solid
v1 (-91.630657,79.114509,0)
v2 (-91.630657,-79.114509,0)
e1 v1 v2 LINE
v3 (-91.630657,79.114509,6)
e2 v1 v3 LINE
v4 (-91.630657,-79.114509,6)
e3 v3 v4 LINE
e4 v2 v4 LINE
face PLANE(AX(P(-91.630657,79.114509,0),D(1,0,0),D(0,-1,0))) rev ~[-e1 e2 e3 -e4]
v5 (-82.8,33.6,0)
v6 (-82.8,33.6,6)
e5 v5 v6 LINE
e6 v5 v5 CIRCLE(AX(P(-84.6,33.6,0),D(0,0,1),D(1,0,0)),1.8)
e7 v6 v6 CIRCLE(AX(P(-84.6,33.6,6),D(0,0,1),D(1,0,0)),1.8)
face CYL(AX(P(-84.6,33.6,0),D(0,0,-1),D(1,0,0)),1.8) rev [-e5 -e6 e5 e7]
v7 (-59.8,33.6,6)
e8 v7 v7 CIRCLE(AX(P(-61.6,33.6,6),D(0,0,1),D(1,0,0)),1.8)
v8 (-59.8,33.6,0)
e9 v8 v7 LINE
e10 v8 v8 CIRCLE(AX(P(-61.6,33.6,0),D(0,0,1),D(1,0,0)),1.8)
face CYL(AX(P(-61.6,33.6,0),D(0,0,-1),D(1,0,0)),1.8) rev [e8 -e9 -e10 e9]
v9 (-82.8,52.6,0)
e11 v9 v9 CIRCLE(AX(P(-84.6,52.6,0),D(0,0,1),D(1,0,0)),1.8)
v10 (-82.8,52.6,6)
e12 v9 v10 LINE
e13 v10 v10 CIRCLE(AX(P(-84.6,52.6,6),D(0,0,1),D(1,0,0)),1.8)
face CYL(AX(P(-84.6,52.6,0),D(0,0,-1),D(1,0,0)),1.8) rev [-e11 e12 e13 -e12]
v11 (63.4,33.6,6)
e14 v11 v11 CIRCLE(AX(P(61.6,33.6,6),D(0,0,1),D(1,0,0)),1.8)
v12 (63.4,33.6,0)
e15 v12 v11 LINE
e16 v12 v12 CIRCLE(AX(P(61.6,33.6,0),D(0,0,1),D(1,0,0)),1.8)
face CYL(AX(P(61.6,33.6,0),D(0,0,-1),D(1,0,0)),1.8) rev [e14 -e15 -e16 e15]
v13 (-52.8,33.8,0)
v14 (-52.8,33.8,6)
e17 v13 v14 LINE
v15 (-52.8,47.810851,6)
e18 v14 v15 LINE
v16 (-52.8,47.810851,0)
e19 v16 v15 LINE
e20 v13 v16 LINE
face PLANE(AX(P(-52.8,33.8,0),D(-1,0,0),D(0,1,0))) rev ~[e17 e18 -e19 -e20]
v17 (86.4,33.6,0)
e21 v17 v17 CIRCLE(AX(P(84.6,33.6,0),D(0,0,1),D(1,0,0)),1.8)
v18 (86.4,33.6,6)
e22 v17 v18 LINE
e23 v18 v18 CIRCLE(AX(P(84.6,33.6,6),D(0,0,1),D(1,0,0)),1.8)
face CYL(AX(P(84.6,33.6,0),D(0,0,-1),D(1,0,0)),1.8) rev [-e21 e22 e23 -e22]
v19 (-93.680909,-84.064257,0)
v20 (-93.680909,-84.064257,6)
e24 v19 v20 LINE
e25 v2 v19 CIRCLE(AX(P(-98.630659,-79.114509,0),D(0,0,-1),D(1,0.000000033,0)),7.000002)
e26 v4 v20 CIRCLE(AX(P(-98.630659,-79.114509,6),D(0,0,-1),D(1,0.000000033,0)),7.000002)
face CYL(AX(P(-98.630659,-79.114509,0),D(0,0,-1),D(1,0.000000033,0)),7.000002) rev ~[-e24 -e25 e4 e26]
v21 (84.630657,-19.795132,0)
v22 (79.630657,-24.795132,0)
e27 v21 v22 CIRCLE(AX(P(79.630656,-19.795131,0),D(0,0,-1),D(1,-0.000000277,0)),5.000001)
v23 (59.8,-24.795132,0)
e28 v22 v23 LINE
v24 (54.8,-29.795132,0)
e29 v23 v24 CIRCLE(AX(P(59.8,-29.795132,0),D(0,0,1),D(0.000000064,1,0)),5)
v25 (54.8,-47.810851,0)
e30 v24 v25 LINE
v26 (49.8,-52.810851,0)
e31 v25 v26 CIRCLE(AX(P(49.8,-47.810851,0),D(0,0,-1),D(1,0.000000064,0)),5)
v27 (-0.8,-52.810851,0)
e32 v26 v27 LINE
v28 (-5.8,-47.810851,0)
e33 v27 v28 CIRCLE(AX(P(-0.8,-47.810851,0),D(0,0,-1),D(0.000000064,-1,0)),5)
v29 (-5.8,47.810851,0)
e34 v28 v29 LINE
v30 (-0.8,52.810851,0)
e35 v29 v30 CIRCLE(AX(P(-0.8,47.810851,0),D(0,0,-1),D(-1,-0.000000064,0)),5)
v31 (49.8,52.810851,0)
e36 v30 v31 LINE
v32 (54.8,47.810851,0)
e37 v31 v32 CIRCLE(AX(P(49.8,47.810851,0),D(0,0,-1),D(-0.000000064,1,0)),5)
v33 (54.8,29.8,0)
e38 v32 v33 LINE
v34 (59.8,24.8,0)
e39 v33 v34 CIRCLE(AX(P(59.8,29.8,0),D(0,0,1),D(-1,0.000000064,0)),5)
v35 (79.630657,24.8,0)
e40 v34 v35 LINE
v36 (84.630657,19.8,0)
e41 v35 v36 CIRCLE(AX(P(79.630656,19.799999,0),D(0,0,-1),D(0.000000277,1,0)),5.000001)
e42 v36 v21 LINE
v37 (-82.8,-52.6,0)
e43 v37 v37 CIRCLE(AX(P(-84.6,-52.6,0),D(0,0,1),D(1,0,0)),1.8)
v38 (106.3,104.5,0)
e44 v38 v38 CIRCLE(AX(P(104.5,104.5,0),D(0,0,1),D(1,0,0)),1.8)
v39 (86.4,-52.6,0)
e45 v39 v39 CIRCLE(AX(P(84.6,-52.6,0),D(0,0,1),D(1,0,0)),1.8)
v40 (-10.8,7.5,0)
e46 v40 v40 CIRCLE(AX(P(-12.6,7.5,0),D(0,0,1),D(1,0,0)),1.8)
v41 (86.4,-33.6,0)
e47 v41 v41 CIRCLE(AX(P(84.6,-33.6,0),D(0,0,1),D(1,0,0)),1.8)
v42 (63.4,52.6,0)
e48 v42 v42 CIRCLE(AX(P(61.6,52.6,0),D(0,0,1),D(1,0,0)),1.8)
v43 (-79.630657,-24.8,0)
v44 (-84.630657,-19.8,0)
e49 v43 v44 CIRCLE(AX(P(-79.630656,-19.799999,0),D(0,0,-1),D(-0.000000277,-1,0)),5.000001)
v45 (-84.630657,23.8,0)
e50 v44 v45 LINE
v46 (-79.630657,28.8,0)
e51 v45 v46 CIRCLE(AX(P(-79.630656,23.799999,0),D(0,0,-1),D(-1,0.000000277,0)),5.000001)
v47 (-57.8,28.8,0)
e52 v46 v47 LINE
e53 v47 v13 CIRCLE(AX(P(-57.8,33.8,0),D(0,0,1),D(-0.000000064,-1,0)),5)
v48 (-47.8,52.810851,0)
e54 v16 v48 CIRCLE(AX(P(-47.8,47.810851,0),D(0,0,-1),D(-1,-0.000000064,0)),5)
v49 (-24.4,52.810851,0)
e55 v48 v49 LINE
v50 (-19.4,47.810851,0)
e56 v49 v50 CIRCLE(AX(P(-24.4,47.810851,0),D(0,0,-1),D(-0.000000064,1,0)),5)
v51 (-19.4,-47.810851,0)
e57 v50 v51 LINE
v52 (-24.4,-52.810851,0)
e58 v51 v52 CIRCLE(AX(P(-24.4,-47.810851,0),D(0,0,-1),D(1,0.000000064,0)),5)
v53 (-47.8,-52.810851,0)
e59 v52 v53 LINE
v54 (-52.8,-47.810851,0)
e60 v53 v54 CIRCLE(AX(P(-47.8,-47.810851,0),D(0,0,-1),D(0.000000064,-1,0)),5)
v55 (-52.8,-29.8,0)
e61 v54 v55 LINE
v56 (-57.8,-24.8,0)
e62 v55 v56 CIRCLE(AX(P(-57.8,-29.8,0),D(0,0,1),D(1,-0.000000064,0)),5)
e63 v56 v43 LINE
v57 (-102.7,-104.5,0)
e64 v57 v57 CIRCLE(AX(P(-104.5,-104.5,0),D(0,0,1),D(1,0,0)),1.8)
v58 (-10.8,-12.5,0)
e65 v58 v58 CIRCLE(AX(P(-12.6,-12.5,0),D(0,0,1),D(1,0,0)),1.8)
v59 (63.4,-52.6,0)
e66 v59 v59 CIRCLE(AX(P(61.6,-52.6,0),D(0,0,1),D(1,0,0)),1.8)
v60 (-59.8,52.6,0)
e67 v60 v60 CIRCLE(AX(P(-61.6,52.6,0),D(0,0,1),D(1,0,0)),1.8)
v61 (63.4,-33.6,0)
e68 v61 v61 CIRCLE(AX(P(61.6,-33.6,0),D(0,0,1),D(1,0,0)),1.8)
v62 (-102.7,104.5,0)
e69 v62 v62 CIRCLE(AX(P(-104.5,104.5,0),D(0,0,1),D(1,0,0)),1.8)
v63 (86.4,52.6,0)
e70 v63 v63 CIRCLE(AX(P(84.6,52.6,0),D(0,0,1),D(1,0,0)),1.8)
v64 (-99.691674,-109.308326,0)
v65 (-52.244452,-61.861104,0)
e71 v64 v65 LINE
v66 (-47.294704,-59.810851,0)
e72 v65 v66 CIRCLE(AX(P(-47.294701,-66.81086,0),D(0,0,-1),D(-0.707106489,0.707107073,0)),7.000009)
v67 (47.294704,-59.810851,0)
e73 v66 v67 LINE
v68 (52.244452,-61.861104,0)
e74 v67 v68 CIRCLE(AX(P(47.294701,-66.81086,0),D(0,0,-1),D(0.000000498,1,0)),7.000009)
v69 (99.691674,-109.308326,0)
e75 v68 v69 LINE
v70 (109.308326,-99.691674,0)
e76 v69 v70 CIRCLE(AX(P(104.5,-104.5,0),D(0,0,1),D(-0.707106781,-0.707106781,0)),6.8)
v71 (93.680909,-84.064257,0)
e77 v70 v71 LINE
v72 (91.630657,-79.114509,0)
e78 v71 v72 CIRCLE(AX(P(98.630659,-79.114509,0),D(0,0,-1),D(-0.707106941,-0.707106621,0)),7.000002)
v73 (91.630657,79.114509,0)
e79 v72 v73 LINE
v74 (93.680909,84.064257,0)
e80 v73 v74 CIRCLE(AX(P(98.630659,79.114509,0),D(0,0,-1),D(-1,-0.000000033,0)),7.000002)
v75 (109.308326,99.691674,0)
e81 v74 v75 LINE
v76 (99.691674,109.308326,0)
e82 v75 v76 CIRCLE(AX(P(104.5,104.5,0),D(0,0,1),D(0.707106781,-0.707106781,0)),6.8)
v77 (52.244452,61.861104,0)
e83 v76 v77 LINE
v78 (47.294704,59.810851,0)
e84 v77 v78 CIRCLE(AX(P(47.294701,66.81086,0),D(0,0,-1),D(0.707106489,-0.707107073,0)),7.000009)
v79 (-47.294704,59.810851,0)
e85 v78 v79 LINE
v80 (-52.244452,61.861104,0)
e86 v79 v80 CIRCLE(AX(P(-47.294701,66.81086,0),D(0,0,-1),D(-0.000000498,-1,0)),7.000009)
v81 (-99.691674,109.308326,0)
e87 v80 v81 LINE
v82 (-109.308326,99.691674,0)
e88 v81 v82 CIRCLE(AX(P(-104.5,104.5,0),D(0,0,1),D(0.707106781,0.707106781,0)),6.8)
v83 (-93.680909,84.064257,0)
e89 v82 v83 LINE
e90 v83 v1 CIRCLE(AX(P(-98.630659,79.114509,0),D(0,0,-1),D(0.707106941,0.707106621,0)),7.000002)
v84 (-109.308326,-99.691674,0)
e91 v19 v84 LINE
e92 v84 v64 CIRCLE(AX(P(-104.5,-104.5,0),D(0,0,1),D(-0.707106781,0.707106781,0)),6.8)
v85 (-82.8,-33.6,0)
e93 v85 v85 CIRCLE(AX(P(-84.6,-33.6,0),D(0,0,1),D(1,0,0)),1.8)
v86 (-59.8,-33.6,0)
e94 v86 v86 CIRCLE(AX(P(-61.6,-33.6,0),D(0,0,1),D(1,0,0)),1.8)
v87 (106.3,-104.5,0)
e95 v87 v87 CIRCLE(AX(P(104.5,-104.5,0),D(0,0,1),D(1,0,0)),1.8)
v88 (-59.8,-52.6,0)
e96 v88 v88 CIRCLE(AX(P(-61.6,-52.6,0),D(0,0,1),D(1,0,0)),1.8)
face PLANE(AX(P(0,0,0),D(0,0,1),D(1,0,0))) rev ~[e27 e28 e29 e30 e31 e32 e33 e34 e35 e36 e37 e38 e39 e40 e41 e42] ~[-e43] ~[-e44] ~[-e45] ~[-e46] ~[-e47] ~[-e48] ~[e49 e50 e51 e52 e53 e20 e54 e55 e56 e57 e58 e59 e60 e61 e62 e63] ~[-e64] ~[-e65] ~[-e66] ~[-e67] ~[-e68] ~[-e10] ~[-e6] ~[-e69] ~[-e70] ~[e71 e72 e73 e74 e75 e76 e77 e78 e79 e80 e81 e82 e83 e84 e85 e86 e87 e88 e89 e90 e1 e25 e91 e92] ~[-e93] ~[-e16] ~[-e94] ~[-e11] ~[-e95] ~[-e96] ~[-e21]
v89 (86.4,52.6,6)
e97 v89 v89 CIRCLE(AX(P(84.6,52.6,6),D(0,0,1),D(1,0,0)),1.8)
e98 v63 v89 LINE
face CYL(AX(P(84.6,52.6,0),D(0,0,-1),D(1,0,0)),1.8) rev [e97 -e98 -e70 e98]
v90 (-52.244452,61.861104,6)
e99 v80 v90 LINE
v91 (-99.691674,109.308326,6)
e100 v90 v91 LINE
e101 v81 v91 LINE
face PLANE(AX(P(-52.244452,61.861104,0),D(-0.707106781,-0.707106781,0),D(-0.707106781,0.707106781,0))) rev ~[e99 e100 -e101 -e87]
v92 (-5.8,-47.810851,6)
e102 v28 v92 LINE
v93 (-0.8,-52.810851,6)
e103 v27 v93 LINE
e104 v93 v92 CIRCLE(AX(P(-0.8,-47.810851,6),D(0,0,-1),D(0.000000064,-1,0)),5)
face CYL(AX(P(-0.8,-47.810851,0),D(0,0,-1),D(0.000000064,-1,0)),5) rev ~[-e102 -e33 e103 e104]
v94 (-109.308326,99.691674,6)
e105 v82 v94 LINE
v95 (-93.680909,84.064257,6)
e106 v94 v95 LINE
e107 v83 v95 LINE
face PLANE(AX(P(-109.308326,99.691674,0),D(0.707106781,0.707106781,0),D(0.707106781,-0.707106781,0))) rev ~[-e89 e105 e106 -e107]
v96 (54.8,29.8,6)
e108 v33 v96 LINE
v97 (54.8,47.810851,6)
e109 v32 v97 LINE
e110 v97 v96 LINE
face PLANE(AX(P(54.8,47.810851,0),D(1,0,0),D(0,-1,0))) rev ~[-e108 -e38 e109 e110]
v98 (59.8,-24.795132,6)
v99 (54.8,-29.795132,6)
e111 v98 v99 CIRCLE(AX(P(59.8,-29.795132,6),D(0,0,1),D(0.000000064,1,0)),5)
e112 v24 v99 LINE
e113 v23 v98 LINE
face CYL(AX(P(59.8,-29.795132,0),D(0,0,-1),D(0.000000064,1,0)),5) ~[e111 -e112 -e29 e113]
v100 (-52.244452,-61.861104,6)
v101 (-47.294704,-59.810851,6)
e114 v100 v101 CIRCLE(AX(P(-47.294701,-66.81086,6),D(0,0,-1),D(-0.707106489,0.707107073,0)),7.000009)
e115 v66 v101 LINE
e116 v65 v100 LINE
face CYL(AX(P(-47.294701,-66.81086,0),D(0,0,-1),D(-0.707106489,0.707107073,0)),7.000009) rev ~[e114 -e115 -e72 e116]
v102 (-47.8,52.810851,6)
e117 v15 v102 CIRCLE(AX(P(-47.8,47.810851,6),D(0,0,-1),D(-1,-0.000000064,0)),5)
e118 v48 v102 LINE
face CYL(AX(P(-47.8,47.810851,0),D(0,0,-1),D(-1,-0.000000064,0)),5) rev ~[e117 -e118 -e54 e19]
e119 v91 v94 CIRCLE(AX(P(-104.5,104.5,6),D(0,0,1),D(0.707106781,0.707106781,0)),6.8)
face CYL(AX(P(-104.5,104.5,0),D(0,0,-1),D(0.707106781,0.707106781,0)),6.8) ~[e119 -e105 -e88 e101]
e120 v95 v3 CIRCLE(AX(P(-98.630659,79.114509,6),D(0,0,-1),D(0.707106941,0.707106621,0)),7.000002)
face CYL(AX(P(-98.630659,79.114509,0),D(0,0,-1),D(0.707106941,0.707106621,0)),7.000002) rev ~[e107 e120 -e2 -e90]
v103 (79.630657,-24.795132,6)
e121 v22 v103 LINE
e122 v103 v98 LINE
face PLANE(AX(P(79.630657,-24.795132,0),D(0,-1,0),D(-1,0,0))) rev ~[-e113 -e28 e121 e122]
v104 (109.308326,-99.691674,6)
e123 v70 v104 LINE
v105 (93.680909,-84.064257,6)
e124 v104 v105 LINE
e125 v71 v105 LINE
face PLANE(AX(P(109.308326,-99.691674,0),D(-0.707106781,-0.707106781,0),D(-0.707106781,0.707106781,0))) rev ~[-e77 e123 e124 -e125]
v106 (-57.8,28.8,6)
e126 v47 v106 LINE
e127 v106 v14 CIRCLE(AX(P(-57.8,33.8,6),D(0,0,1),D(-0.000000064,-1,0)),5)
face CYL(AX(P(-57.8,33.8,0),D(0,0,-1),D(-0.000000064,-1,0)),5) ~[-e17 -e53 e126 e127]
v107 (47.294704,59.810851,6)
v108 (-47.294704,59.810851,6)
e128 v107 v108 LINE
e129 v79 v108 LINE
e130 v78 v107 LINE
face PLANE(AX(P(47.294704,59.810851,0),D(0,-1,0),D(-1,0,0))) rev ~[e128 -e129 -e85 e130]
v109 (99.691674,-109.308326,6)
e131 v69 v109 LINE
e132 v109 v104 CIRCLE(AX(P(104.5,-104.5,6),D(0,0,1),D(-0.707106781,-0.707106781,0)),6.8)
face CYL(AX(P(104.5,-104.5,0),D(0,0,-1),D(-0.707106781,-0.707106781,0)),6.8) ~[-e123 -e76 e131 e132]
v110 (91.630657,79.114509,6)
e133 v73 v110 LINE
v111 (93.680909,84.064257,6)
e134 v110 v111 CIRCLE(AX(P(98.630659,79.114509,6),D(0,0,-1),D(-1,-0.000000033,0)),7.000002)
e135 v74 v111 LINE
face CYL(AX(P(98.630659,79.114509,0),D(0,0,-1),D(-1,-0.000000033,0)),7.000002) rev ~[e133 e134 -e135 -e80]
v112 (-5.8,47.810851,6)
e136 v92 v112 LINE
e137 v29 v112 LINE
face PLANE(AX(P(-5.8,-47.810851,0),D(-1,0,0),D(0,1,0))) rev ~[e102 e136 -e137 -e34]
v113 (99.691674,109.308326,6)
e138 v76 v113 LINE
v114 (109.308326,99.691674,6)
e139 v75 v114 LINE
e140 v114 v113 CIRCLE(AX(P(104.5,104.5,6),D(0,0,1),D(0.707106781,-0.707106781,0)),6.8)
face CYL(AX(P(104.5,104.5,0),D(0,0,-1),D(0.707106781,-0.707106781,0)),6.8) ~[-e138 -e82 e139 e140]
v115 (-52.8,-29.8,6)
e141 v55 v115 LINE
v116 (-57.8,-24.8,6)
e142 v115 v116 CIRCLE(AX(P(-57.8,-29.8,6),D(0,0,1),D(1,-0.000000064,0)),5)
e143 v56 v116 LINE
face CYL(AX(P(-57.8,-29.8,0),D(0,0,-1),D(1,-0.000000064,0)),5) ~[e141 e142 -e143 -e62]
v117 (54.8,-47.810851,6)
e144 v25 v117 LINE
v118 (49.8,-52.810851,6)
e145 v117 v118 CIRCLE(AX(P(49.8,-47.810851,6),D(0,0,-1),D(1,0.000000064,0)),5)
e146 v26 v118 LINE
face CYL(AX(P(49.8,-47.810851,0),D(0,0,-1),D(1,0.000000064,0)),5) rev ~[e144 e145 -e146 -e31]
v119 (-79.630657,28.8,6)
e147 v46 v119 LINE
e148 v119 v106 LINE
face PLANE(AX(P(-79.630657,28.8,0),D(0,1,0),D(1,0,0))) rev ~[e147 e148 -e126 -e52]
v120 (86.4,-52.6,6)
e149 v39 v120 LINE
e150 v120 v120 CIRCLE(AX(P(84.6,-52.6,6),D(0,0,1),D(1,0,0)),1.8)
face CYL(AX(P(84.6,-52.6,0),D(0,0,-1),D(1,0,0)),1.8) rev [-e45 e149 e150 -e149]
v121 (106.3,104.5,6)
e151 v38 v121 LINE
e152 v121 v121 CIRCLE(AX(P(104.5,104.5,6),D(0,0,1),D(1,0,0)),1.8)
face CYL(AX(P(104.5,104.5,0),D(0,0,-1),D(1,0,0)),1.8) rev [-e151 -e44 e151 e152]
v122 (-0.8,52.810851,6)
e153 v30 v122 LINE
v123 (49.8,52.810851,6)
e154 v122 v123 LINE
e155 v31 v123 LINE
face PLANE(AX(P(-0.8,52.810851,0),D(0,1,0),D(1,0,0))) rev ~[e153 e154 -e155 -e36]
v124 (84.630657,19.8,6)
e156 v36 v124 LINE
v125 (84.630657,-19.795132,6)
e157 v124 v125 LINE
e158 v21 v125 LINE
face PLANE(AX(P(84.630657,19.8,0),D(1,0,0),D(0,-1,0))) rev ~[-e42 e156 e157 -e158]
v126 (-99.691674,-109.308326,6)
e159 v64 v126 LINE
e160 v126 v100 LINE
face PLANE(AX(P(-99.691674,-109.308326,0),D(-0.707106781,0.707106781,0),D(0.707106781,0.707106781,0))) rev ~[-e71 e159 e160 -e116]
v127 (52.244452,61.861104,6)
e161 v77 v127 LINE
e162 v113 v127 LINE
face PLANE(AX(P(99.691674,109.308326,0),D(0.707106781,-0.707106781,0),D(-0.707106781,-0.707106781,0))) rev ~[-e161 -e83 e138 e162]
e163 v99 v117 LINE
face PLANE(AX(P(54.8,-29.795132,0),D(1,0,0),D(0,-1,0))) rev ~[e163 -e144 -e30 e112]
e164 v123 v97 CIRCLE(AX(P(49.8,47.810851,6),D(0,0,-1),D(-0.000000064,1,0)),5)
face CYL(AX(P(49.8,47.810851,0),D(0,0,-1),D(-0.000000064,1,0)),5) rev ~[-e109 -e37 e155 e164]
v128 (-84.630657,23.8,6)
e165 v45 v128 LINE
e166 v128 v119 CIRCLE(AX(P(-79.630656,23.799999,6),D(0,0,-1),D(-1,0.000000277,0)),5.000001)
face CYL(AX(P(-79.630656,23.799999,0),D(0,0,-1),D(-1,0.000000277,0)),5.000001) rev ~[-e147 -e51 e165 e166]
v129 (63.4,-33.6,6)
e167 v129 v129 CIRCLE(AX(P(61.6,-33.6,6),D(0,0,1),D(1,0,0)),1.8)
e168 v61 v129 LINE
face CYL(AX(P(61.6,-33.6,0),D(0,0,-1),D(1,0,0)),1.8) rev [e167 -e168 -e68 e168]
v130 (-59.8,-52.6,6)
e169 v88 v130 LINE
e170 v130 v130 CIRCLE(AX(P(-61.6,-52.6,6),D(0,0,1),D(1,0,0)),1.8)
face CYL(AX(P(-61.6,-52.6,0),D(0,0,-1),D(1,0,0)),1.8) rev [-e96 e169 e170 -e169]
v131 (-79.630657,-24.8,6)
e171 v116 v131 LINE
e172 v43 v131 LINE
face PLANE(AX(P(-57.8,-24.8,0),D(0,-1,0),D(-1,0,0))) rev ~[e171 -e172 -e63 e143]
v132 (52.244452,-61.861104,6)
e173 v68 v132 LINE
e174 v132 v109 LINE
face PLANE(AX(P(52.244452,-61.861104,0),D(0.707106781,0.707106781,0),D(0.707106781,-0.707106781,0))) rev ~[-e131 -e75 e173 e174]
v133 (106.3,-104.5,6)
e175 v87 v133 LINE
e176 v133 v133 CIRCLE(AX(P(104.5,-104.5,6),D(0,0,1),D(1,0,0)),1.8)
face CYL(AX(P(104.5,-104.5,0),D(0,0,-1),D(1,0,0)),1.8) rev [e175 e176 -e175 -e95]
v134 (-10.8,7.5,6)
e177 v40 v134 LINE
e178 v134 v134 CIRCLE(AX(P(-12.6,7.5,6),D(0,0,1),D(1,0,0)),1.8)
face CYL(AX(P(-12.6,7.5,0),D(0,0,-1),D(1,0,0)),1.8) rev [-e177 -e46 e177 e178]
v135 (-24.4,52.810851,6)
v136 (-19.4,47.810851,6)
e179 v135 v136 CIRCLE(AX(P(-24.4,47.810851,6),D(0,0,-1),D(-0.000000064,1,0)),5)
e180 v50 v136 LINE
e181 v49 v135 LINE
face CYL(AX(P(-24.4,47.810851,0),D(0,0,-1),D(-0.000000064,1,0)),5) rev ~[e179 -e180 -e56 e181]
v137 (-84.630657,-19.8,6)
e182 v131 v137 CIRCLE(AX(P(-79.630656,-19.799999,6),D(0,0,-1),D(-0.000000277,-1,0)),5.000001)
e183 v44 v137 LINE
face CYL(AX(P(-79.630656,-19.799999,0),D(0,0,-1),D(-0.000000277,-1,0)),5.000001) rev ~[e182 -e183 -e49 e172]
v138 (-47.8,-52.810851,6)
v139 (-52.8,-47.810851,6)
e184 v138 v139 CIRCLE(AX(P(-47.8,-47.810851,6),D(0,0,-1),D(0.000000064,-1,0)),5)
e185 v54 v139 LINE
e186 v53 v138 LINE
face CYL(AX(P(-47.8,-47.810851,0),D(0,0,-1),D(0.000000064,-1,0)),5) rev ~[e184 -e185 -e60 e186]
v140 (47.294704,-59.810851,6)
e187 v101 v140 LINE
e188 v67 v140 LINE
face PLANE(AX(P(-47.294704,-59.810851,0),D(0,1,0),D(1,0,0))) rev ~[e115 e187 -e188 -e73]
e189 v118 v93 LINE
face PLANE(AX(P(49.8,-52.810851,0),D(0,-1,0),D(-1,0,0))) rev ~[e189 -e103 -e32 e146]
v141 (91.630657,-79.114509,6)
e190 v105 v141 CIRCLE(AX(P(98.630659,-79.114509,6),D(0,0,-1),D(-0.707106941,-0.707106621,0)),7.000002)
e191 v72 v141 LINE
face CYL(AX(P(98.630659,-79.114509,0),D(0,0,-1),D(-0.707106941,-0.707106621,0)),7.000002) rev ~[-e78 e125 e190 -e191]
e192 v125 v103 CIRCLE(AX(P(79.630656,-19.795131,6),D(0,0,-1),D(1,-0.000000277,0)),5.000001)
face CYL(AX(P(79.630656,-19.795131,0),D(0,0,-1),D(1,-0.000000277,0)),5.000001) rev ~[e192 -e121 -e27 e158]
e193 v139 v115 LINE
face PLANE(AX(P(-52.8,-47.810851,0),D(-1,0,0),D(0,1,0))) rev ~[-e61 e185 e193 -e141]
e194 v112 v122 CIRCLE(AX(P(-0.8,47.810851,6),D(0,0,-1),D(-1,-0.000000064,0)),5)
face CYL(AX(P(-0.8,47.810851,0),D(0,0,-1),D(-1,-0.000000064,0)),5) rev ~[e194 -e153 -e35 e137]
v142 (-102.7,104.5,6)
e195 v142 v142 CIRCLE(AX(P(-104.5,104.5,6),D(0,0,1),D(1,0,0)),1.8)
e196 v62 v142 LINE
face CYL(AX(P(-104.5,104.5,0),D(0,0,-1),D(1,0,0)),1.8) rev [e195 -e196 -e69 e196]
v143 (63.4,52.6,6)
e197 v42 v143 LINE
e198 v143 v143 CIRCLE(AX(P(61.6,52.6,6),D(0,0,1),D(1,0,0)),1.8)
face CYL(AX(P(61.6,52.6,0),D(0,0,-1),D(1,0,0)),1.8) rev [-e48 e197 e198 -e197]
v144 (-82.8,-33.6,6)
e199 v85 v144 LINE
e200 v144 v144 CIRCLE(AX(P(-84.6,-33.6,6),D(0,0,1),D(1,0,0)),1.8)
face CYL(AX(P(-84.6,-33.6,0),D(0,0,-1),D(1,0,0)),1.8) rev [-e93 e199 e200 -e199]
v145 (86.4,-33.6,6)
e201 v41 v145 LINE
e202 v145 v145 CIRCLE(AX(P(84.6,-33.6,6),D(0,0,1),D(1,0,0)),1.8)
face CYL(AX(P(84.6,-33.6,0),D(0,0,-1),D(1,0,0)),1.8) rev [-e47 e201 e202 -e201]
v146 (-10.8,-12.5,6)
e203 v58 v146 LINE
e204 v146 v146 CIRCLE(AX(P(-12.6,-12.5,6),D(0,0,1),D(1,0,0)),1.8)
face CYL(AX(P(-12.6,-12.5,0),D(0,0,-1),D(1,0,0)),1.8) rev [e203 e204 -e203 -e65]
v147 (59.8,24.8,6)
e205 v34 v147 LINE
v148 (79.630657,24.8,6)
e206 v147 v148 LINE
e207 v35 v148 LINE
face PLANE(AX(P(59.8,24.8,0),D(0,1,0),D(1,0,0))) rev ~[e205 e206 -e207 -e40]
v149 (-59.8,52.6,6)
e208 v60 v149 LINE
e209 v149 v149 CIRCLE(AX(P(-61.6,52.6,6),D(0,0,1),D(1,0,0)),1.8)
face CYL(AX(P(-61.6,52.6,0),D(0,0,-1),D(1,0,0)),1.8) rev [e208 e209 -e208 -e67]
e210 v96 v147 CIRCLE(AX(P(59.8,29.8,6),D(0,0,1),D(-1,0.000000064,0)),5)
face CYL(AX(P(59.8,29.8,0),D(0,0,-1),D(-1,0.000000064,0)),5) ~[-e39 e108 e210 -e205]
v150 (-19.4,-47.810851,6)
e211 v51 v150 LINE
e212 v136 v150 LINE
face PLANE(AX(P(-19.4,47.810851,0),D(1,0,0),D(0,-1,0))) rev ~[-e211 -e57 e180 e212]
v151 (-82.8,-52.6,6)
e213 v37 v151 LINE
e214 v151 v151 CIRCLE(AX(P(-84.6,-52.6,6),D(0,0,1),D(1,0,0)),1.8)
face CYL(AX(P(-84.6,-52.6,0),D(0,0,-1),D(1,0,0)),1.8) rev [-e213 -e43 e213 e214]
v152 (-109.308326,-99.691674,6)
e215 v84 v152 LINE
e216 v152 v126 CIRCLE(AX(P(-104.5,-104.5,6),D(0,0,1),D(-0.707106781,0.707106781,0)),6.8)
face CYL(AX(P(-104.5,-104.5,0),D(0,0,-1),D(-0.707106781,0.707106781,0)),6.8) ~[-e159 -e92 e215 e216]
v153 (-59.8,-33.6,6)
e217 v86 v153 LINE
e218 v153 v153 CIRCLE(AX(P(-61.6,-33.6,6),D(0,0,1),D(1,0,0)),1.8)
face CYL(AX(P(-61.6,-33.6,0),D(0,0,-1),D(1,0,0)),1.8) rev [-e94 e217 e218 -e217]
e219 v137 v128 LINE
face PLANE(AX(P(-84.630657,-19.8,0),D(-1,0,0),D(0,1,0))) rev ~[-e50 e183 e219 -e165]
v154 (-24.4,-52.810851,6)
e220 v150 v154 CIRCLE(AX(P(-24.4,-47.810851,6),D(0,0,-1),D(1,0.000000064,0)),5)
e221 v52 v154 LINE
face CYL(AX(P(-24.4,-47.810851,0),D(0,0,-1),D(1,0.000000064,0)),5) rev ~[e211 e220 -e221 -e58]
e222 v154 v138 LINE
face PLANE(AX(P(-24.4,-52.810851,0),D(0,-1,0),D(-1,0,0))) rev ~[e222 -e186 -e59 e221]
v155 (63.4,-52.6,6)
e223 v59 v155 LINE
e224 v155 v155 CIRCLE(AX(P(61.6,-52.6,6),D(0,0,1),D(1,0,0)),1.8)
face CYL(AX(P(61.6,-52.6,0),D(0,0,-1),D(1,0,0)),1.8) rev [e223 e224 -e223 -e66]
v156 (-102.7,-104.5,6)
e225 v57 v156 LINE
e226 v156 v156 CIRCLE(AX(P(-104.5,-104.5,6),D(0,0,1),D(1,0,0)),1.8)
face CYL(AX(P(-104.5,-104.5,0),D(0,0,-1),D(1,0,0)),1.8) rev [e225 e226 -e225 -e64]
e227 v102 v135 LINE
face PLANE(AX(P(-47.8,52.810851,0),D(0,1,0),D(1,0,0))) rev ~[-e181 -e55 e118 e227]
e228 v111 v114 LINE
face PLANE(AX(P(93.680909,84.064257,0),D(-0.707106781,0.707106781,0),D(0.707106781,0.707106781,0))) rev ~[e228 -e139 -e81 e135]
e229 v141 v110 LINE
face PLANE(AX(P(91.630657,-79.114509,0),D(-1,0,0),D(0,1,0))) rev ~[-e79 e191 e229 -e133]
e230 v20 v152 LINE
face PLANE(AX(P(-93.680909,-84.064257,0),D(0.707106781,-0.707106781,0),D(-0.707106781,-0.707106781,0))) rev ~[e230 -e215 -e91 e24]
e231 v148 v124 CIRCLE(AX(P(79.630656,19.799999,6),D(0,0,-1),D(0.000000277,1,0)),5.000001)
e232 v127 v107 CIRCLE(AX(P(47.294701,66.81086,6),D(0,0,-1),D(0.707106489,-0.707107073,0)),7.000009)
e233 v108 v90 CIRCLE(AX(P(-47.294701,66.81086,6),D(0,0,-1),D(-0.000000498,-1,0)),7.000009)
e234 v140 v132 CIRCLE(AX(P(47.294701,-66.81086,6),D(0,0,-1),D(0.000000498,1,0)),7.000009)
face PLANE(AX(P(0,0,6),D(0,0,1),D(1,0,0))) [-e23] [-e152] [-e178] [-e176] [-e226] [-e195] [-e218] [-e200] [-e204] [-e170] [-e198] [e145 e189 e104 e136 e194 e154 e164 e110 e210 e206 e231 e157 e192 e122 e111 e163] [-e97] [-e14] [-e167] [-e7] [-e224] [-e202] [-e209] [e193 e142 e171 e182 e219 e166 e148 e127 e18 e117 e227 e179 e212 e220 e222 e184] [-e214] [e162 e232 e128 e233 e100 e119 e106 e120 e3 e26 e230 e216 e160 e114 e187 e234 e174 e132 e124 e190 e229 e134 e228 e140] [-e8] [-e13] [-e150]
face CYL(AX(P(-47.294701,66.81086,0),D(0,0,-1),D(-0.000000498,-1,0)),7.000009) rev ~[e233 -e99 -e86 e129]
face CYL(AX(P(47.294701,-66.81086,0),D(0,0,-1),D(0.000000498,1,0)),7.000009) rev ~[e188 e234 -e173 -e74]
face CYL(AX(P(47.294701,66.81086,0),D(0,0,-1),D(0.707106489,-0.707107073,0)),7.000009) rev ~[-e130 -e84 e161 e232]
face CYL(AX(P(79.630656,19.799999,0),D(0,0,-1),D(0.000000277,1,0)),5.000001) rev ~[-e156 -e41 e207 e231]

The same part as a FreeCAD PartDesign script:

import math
import FreeCAD as App
import Part
import Sketcher

V = App.Vector

doc = App.newDocument("Part")
params = doc.addObject("Spreadsheet::Sheet", "Params")
for row, (alias, value) in enumerate([
    ("sketch1_radius", "5 mm"),
    ("sketch1_diameter", "3.6 mm"),
    ("sketch1_radius2", "6.8 mm"),
    ("sketch1_width", "23.4 mm"),
    ("sketch1_width2", "50.6 mm"),
    ("pad1_length", "6 mm"),
], start=1):
    params.set(f"A{row}", alias)
    params.set(f"B{row}", "=" + value)
    params.setAlias(f"B{row}", alias)

body = doc.addObject("PartDesign::Body", "Body")

# Sketch on XY plane
sketch1 = doc.addObject("Sketcher::SketchObject", "Sketch")
body.addObject(sketch1)
sketch1.AttachmentSupport = (doc.XY_Plane, [""])
sketch1.MapMode = "FlatFace"
sketch1.addGeometry([
    Part.ArcOfCircle(Part.Circle(V(47.294701, 66.81086, 0), V(0, 0, 1), 7.000009), math.radians(-89.999971), math.radians(-45.000024)),  # 0
    Part.LineSegment(V(47.294704, 59.810851, 0), V(-47.294704, 59.810851, 0)),  # 1
    Part.ArcOfCircle(Part.Circle(V(-47.294701, 66.81086, 0), V(0, 0, 1), 7.000009), math.radians(-134.999976), math.radians(-90.000029)),  # 2
    Part.LineSegment(V(-52.244452, 61.861104, 0), V(-99.691674, 109.308326, 0)),  # 3
    Part.ArcOfCircle(Part.Circle(V(-104.5, 104.5, 0), V(0, 0, 1), 6.8), math.radians(45), math.radians(225)),  # 4
    Part.LineSegment(V(-109.308326, 99.691674, 0), V(-93.680909, 84.064257, 0)),  # 5
    Part.ArcOfCircle(Part.Circle(V(-98.630659, 79.114509, 0), V(0, 0, 1), 7.000002), math.radians(-0.000002), math.radians(44.999987)),  # 6
    Part.LineSegment(V(-91.630657, 79.114509, 0), V(-91.630657, -79.114509, 0)),  # 7
    Part.ArcOfCircle(Part.Circle(V(-98.630659, -79.114509, 0), V(0, 0, 1), 7.000002), math.radians(-44.999987), math.radians(0.000002)),  # 8
    Part.LineSegment(V(-93.680909, -84.064257, 0), V(-109.308326, -99.691674, 0)),  # 9
    Part.ArcOfCircle(Part.Circle(V(-104.5, -104.5, 0), V(0, 0, 1), 6.8), math.radians(135), math.radians(315)),  # 10
    Part.LineSegment(V(-99.691674, -109.308326, 0), V(-52.244452, -61.861104, 0)),  # 11
    Part.ArcOfCircle(Part.Circle(V(-47.294701, -66.81086, 0), V(0, 0, 1), 7.000009), math.radians(90.000029), math.radians(134.999976)),  # 12
    Part.LineSegment(V(-47.294704, -59.810851, 0), V(47.294704, -59.810851, 0)),  # 13
    Part.ArcOfCircle(Part.Circle(V(47.294701, -66.81086, 0), V(0, 0, 1), 7.000009), math.radians(45.000024), math.radians(89.999971)),  # 14
    Part.LineSegment(V(52.244452, -61.861104, 0), V(99.691674, -109.308326, 0)),  # 15
    Part.ArcOfCircle(Part.Circle(V(104.5, -104.5, 0), V(0, 0, 1), 6.8), math.radians(-135), math.radians(45)),  # 16
    Part.LineSegment(V(109.308326, -99.691674, 0), V(93.680909, -84.064257, 0)),  # 17
    Part.ArcOfCircle(Part.Circle(V(98.630659, -79.114509, 0), V(0, 0, 1), 7.000002), math.radians(179.999998), math.radians(224.999987)),  # 18
    Part.LineSegment(V(91.630657, -79.114509, 0), V(91.630657, 79.114509, 0)),  # 19
    Part.ArcOfCircle(Part.Circle(V(98.630659, 79.114509, 0), V(0, 0, 1), 7.000002), math.radians(135.000013), math.radians(180.000002)),  # 20
    Part.LineSegment(V(93.680909, 84.064257, 0), V(109.308326, 99.691674, 0)),  # 21
    Part.ArcOfCircle(Part.Circle(V(104.5, 104.5, 0), V(0, 0, 1), 6.8), math.radians(-45), math.radians(135)),  # 22
    Part.LineSegment(V(99.691674, 109.308326, 0), V(52.244452, 61.861104, 0)),  # 23
    Part.Circle(V(-104.5, -104.5, 0), V(0, 0, 1), 1.8),  # 24
    Part.Circle(V(-84.6, -52.6, 0), V(0, 0, 1), 1.8),  # 25
    Part.Circle(V(-84.6, -33.6, 0), V(0, 0, 1), 1.8),  # 26
    Part.Circle(V(-61.6, -52.6, 0), V(0, 0, 1), 1.8),  # 27
    Part.Circle(V(-61.6, -33.6, 0), V(0, 0, 1), 1.8),  # 28
    Part.Circle(V(-12.6, -12.5, 0), V(0, 0, 1), 1.8),  # 29
    Part.Circle(V(104.5, -104.5, 0), V(0, 0, 1), 1.8),  # 30
    Part.Circle(V(61.6, -52.6, 0), V(0, 0, 1), 1.8),  # 31
    Part.Circle(V(61.6, -33.6, 0), V(0, 0, 1), 1.8),  # 32
    Part.Circle(V(84.6, -52.6, 0), V(0, 0, 1), 1.8),  # 33
    Part.Circle(V(84.6, -33.6, 0), V(0, 0, 1), 1.8),  # 34
    Part.Circle(V(-84.6, 33.6, 0), V(0, 0, 1), 1.8),  # 35
    Part.Circle(V(-84.6, 52.6, 0), V(0, 0, 1), 1.8),  # 36
    Part.Circle(V(-61.6, 33.6, 0), V(0, 0, 1), 1.8),  # 37
    Part.Circle(V(-61.6, 52.6, 0), V(0, 0, 1), 1.8),  # 38
    Part.LineSegment(V(-19.4, 47.810851, 0), V(-19.4, -47.810851, 0)),  # 39
    Part.ArcOfCircle(Part.Circle(V(-24.4, -47.810851, 0), V(0, 0, 1), 5), math.radians(-90.000004), math.radians(0.000004)),  # 40
    Part.LineSegment(V(-24.4, -52.810851, 0), V(-47.8, -52.810851, 0)),  # 41
    Part.ArcOfCircle(Part.Circle(V(-47.8, -47.810851, 0), V(0, 0, 1), 5), math.radians(179.999996), math.radians(270.000004)),  # 42
    Part.LineSegment(V(-52.8, -47.810851, 0), V(-52.8, -29.8, 0)),  # 43
    Part.ArcOfCircle(Part.Circle(V(-57.8, -29.8, 0), V(0, 0, 1), 5), math.radians(-0.000004), math.radians(90.000004)),  # 44
    Part.LineSegment(V(-57.8, -24.8, 0), V(-79.630657, -24.8, 0)),  # 45
    Part.ArcOfCircle(Part.Circle(V(-79.630656, -19.799999, 0), V(0, 0, 1), 5.000001), math.radians(-179.999984), math.radians(-90.000016)),  # 46
    Part.LineSegment(V(-84.630657, -19.8, 0), V(-84.630657, 23.8, 0)),  # 47
    Part.ArcOfCircle(Part.Circle(V(-79.630656, 23.799999, 0), V(0, 0, 1), 5.000001), math.radians(90.000016), math.radians(179.999984)),  # 48
    Part.LineSegment(V(-79.630657, 28.8, 0), V(-57.8, 28.8, 0)),  # 49
    Part.ArcOfCircle(Part.Circle(V(-57.8, 33.8, 0), V(0, 0, 1), 5), math.radians(-90.000004), math.radians(0.000004)),  # 50
    Part.LineSegment(V(-52.8, 33.8, 0), V(-52.8, 47.810851, 0)),  # 51
    Part.ArcOfCircle(Part.Circle(V(-47.8, 47.810851, 0), V(0, 0, 1), 5), math.radians(89.999996), math.radians(180.000004)),  # 52
    Part.LineSegment(V(-47.8, 52.810851, 0), V(-24.4, 52.810851, 0)),  # 53
    Part.ArcOfCircle(Part.Circle(V(-24.4, 47.810851, 0), V(0, 0, 1), 5), math.radians(-0.000004), math.radians(90.000004)),  # 54
    Part.Circle(V(-12.6, 7.5, 0), V(0, 0, 1), 1.8),  # 55
    Part.Circle(V(-104.5, 104.5, 0), V(0, 0, 1), 1.8),  # 56
    Part.LineSegment(V(-5.8, -47.810851, 0), V(-5.8, 47.810851, 0)),  # 57
    Part.ArcOfCircle(Part.Circle(V(-0.8, 47.810851, 0), V(0, 0, 1), 5), math.radians(89.999996), math.radians(180.000004)),  # 58
    Part.LineSegment(V(-0.8, 52.810851, 0), V(49.8, 52.810851, 0)),  # 59
    Part.ArcOfCircle(Part.Circle(V(49.8, 47.810851, 0), V(0, 0, 1), 5), math.radians(-0.000004), math.radians(90.000004)),  # 60
    Part.LineSegment(V(54.8, 47.810851, 0), V(54.8, 29.8, 0)),  # 61
    Part.ArcOfCircle(Part.Circle(V(59.8, 29.8, 0), V(0, 0, 1), 5), math.radians(179.999996), math.radians(270.000004)),  # 62
    Part.LineSegment(V(59.8, 24.8, 0), V(79.630657, 24.8, 0)),  # 63
    Part.ArcOfCircle(Part.Circle(V(79.630656, 19.799999, 0), V(0, 0, 1), 5.000001), math.radians(0.000016), math.radians(89.999984)),  # 64
    Part.LineSegment(V(84.630657, 19.8, 0), V(84.630657, -19.795132, 0)),  # 65
    Part.ArcOfCircle(Part.Circle(V(79.630656, -19.795131, 0), V(0, 0, 1), 5.000001), math.radians(-89.999984), math.radians(-0.000016)),  # 66
    Part.LineSegment(V(79.630657, -24.795132, 0), V(59.8, -24.795132, 0)),  # 67
    Part.ArcOfCircle(Part.Circle(V(59.8, -29.795132, 0), V(0, 0, 1), 5), math.radians(89.999996), math.radians(180.000004)),  # 68
    Part.LineSegment(V(54.8, -29.795132, 0), V(54.8, -47.810851, 0)),  # 69
    Part.ArcOfCircle(Part.Circle(V(49.8, -47.810851, 0), V(0, 0, 1), 5), math.radians(-90.000004), math.radians(0.000004)),  # 70
    Part.LineSegment(V(49.8, -52.810851, 0), V(-0.8, -52.810851, 0)),  # 71
    Part.ArcOfCircle(Part.Circle(V(-0.8, -47.810851, 0), V(0, 0, 1), 5), math.radians(179.999996), math.radians(270.000004)),  # 72
    Part.Circle(V(61.6, 33.6, 0), V(0, 0, 1), 1.8),  # 73
    Part.Circle(V(61.6, 52.6, 0), V(0, 0, 1), 1.8),  # 74
    Part.Circle(V(84.6, 33.6, 0), V(0, 0, 1), 1.8),  # 75
    Part.Circle(V(84.6, 52.6, 0), V(0, 0, 1), 1.8),  # 76
    Part.Circle(V(104.5, 104.5, 0), V(0, 0, 1), 1.8),  # 77
], False)
sketch1.addConstraint([
    Sketcher.Constraint("Tangent", 0, 1, 1, 1),
    Sketcher.Constraint("Tangent", 1, 2, 2, 2),
    Sketcher.Constraint("Tangent", 2, 1, 3, 1),
    Sketcher.Constraint("Tangent", 3, 2, 4, 1),
    Sketcher.Constraint("Tangent", 4, 2, 5, 1),
    Sketcher.Constraint("Tangent", 5, 2, 6, 2),
    Sketcher.Constraint("Tangent", 6, 1, 7, 1),
    Sketcher.Constraint("Tangent", 7, 2, 8, 2),
    Sketcher.Constraint("Tangent", 8, 1, 9, 1),
    Sketcher.Constraint("Tangent", 9, 2, 10, 1),
    Sketcher.Constraint("Tangent", 10, 2, 11, 1),
    Sketcher.Constraint("Tangent", 11, 2, 12, 2),
    Sketcher.Constraint("Tangent", 12, 1, 13, 1),
    Sketcher.Constraint("Tangent", 13, 2, 14, 2),
    Sketcher.Constraint("Tangent", 14, 1, 15, 1),
    Sketcher.Constraint("Tangent", 15, 2, 16, 1),
    Sketcher.Constraint("Tangent", 16, 2, 17, 1),
    Sketcher.Constraint("Tangent", 17, 2, 18, 2),
    Sketcher.Constraint("Tangent", 18, 1, 19, 1),
    Sketcher.Constraint("Tangent", 19, 2, 20, 2),
    Sketcher.Constraint("Tangent", 20, 1, 21, 1),
    Sketcher.Constraint("Tangent", 21, 2, 22, 1),
    Sketcher.Constraint("Tangent", 22, 2, 23, 1),
    Sketcher.Constraint("Tangent", 23, 2, 0, 2),
    Sketcher.Constraint("Tangent", 39, 2, 40, 2),
    Sketcher.Constraint("Tangent", 40, 1, 41, 1),
    Sketcher.Constraint("Tangent", 41, 2, 42, 2),
    Sketcher.Constraint("Tangent", 42, 1, 43, 1),
    Sketcher.Constraint("Tangent", 43, 2, 44, 1),
    Sketcher.Constraint("Tangent", 44, 2, 45, 1),
    Sketcher.Constraint("Tangent", 45, 2, 46, 2),
    Sketcher.Constraint("Tangent", 46, 1, 47, 1),
    Sketcher.Constraint("Tangent", 47, 2, 48, 2),
    Sketcher.Constraint("Tangent", 48, 1, 49, 1),
    Sketcher.Constraint("Tangent", 49, 2, 50, 1),
    Sketcher.Constraint("Tangent", 50, 2, 51, 1),
    Sketcher.Constraint("Tangent", 51, 2, 52, 2),
    Sketcher.Constraint("Tangent", 52, 1, 53, 1),
    Sketcher.Constraint("Tangent", 53, 2, 54, 2),
    Sketcher.Constraint("Tangent", 54, 1, 39, 1),
    Sketcher.Constraint("Tangent", 57, 2, 58, 2),
    Sketcher.Constraint("Tangent", 58, 1, 59, 1),
    Sketcher.Constraint("Tangent", 59, 2, 60, 2),
    Sketcher.Constraint("Tangent", 60, 1, 61, 1),
    Sketcher.Constraint("Tangent", 61, 2, 62, 1),
    Sketcher.Constraint("Tangent", 62, 2, 63, 1),
    Sketcher.Constraint("Tangent", 63, 2, 64, 2),
    Sketcher.Constraint("Tangent", 64, 1, 65, 1),
    Sketcher.Constraint("Tangent", 65, 2, 66, 2),
    Sketcher.Constraint("Tangent", 66, 1, 67, 1),
    Sketcher.Constraint("Tangent", 67, 2, 68, 1),
    Sketcher.Constraint("Tangent", 68, 2, 69, 1),
    Sketcher.Constraint("Tangent", 69, 2, 70, 2),
    Sketcher.Constraint("Tangent", 70, 1, 71, 1),
    Sketcher.Constraint("Tangent", 71, 2, 72, 2),
    Sketcher.Constraint("Tangent", 72, 1, 57, 1),
    Sketcher.Constraint("Horizontal", 1),
    Sketcher.Constraint("Vertical", 7),
    Sketcher.Constraint("Horizontal", 13),
    Sketcher.Constraint("Vertical", 19),
    Sketcher.Constraint("Vertical", 39),
    Sketcher.Constraint("Horizontal", 41),
    Sketcher.Constraint("Vertical", 43),
    Sketcher.Constraint("Horizontal", 45),
    Sketcher.Constraint("Vertical", 47),
    Sketcher.Constraint("Horizontal", 49),
    Sketcher.Constraint("Vertical", 51),
    Sketcher.Constraint("Horizontal", 53),
    Sketcher.Constraint("Vertical", 57),
    Sketcher.Constraint("Horizontal", 59),
    Sketcher.Constraint("Vertical", 61),
    Sketcher.Constraint("Horizontal", 63),
    Sketcher.Constraint("Vertical", 65),
    Sketcher.Constraint("Horizontal", 67),
    Sketcher.Constraint("Vertical", 69),
    Sketcher.Constraint("Horizontal", 71),
    Sketcher.Constraint("Coincident", 24, 3, 10, 3),
    Sketcher.Constraint("Coincident", 30, 3, 16, 3),
    Sketcher.Constraint("Coincident", 56, 3, 4, 3),
    Sketcher.Constraint("Coincident", 77, 3, 22, 3),
    Sketcher.Constraint("Equal", 0, 2),
    Sketcher.Constraint("Equal", 6, 8),
    Sketcher.Constraint("Equal", 4, 10),
    Sketcher.Constraint("Equal", 2, 12),
    Sketcher.Constraint("Equal", 12, 14),
    Sketcher.Constraint("Equal", 10, 16),
    Sketcher.Constraint("Equal", 8, 18),
    Sketcher.Constraint("Equal", 18, 20),
    Sketcher.Constraint("Equal", 16, 22),
    Sketcher.Constraint("Equal", 24, 25),
    Sketcher.Constraint("Equal", 25, 26),
    Sketcher.Constraint("Equal", 26, 27),
    Sketcher.Constraint("Equal", 27, 28),
    Sketcher.Constraint("Equal", 28, 29),
    Sketcher.Constraint("Equal", 29, 30),
    Sketcher.Constraint("Equal", 30, 31),
    Sketcher.Constraint("Equal", 31, 32),
    Sketcher.Constraint("Equal", 32, 33),
    Sketcher.Constraint("Equal", 33, 34),
    Sketcher.Constraint("Equal", 34, 35),
    Sketcher.Constraint("Equal", 35, 36),
    Sketcher.Constraint("Equal", 36, 37),
    Sketcher.Constraint("Equal", 37, 38),
    Sketcher.Constraint("Equal", 40, 42),
    Sketcher.Constraint("Equal", 42, 44),
    Sketcher.Constraint("Equal", 44, 46),
    Sketcher.Constraint("Equal", 46, 48),
    Sketcher.Constraint("Equal", 48, 50),
    Sketcher.Constraint("Equal", 50, 52),
    Sketcher.Constraint("Equal", 52, 54),
    Sketcher.Constraint("Equal", 38, 55),
    Sketcher.Constraint("Equal", 55, 56),
    Sketcher.Constraint("Equal", 54, 58),
    Sketcher.Constraint("Equal", 58, 60),
    Sketcher.Constraint("Equal", 60, 62),
    Sketcher.Constraint("Equal", 62, 64),
    Sketcher.Constraint("Equal", 64, 66),
    Sketcher.Constraint("Equal", 66, 68),
    Sketcher.Constraint("Equal", 68, 70),
    Sketcher.Constraint("Equal", 70, 72),
    Sketcher.Constraint("Equal", 56, 73),
    Sketcher.Constraint("Equal", 73, 74),
    Sketcher.Constraint("Equal", 74, 75),
    Sketcher.Constraint("Equal", 75, 76),
    Sketcher.Constraint("Equal", 76, 77),
    Sketcher.Constraint("Symmetric", 0, 3, 12, 3, -1, 1),
    Sketcher.Constraint("Symmetric", 4, 3, 16, 3, -1, 1),
    Sketcher.Constraint("Symmetric", 6, 3, 18, 3, -1, 1),
    Sketcher.Constraint("Symmetric", 10, 3, 22, 3, -1, 1),
    Sketcher.Constraint("Symmetric", 34, 3, 35, 3, -1, 1),
    Sketcher.Constraint("Symmetric", 33, 3, 36, 3, -1, 1),
    Sketcher.Constraint("Symmetric", 32, 3, 37, 3, -1, 1),
    Sketcher.Constraint("Symmetric", 31, 3, 38, 3, -1, 1),
    Sketcher.Constraint("Symmetric", 46, 3, 64, 3, -1, 1),
    Sketcher.Constraint("Symmetric", 28, 3, 73, 3, -1, 1),
    Sketcher.Constraint("Symmetric", 27, 3, 74, 3, -1, 1),
    Sketcher.Constraint("Symmetric", 26, 3, 75, 3, -1, 1),
    Sketcher.Constraint("Symmetric", 25, 3, 76, 3, -1, 1),
    Sketcher.Constraint("Symmetric", 10, 3, 16, 3, -2),
    Sketcher.Constraint("Symmetric", 27, 3, 31, 3, -2),
    Sketcher.Constraint("Symmetric", 28, 3, 32, 3, -2),
    Sketcher.Constraint("Symmetric", 25, 3, 33, 3, -2),
    Sketcher.Constraint("Symmetric", 26, 3, 34, 3, -2),
    Sketcher.Constraint("Symmetric", 42, 3, 52, 3, -1),
    Sketcher.Constraint("Symmetric", 60, 3, 70, 3, -1),
    Sketcher.Constraint("Parallel", 3, 5),
    Sketcher.Constraint("Perpendicular", 5, 9),
    Sketcher.Constraint("Parallel", 9, 11),
    Sketcher.Constraint("Perpendicular", 11, 15),
    Sketcher.Constraint("Perpendicular", 17, 21),
    Sketcher.Constraint("Horizontal", 8, 3, 18, 3),
    Sketcher.Constraint("Horizontal", 25, 3, 27, 3),
    Sketcher.Constraint("Horizontal", 26, 3, 28, 3),
    Sketcher.Constraint("Horizontal", 54, 3, 58, 3),
    Sketcher.Constraint("Vertical", 25, 3, 26, 3),
    Sketcher.Constraint("Vertical", 27, 3, 28, 3),
    Sketcher.Constraint("Vertical", 29, 3, 55, 3),
    Sketcher.Constraint("Radius", 40, 5.0),
    Sketcher.Constraint("Diameter", 24, 3.6),
    Sketcher.Constraint("Radius", 4, 6.8),
    Sketcher.Constraint("DistanceX", 41, 2, 41, 1, 23.4),
    Sketcher.Constraint("DistanceX", 59, 1, 59, 2, 50.6),
    Sketcher.Constraint("DistanceY", 47, 1, 47, 2, 43.6),
    Sketcher.Constraint("DistanceX", 4, 3, -1, 1, 104.5),
    Sketcher.Constraint("DistanceY", -1, 1, 4, 3, 104.5),
    Sketcher.Constraint("DistanceX", 25, 3, -1, 1, 84.6),
    Sketcher.Constraint("DistanceY", 25, 3, -1, 1, 52.6),
    Sketcher.Constraint("DistanceY", 26, 3, -1, 1, 33.6),
    Sketcher.Constraint("DistanceX", 27, 3, -1, 1, 61.6),
    Sketcher.Constraint("DistanceX", 29, 3, -1, 1, 12.6),
    Sketcher.Constraint("DistanceY", 29, 3, -1, 1, 12.5),
    Sketcher.Constraint("DistanceX", 40, 3, -1, 1, 24.4),
    Sketcher.Constraint("DistanceY", 44, 3, -1, 1, 29.8),
    Sketcher.Constraint("DistanceY", -1, 1, 55, 3, 7.5),
    Sketcher.Constraint("DistanceX", 58, 3, -1, 1, 0.8),
    Sketcher.Constraint("Radius", 0, 7.000009),
    Sketcher.Constraint("DistanceY", 39, 2, 39, 1, 95.621702),
    Sketcher.Constraint("Radius", 6, 7.000002),
    Sketcher.Constraint("DistanceX", 1, 2, 1, 1, 94.589408),
    Sketcher.Constraint("DistanceY", 7, 2, 7, 1, 158.229018),
    Sketcher.Constraint("DistanceY", 69, 2, 69, 1, 18.015719),
    Sketcher.Constraint("DistanceX", 45, 2, 45, 1, 21.830657),
])
sketch1.setExpression("Constraints[157]", "Params.sketch1_radius")
sketch1.setExpression("Constraints[158]", "Params.sketch1_diameter")
sketch1.setExpression("Constraints[159]", "Params.sketch1_radius2")
sketch1.setExpression("Constraints[160]", "Params.sketch1_width")
sketch1.setExpression("Constraints[161]", "Params.sketch1_width2")
pad1 = doc.addObject("PartDesign::Pad", "Pad")
body.addObject(pad1)
pad1.Profile = sketch1
pad1.setExpression("Length", "Params.pad1_length")

doc.recompute()
